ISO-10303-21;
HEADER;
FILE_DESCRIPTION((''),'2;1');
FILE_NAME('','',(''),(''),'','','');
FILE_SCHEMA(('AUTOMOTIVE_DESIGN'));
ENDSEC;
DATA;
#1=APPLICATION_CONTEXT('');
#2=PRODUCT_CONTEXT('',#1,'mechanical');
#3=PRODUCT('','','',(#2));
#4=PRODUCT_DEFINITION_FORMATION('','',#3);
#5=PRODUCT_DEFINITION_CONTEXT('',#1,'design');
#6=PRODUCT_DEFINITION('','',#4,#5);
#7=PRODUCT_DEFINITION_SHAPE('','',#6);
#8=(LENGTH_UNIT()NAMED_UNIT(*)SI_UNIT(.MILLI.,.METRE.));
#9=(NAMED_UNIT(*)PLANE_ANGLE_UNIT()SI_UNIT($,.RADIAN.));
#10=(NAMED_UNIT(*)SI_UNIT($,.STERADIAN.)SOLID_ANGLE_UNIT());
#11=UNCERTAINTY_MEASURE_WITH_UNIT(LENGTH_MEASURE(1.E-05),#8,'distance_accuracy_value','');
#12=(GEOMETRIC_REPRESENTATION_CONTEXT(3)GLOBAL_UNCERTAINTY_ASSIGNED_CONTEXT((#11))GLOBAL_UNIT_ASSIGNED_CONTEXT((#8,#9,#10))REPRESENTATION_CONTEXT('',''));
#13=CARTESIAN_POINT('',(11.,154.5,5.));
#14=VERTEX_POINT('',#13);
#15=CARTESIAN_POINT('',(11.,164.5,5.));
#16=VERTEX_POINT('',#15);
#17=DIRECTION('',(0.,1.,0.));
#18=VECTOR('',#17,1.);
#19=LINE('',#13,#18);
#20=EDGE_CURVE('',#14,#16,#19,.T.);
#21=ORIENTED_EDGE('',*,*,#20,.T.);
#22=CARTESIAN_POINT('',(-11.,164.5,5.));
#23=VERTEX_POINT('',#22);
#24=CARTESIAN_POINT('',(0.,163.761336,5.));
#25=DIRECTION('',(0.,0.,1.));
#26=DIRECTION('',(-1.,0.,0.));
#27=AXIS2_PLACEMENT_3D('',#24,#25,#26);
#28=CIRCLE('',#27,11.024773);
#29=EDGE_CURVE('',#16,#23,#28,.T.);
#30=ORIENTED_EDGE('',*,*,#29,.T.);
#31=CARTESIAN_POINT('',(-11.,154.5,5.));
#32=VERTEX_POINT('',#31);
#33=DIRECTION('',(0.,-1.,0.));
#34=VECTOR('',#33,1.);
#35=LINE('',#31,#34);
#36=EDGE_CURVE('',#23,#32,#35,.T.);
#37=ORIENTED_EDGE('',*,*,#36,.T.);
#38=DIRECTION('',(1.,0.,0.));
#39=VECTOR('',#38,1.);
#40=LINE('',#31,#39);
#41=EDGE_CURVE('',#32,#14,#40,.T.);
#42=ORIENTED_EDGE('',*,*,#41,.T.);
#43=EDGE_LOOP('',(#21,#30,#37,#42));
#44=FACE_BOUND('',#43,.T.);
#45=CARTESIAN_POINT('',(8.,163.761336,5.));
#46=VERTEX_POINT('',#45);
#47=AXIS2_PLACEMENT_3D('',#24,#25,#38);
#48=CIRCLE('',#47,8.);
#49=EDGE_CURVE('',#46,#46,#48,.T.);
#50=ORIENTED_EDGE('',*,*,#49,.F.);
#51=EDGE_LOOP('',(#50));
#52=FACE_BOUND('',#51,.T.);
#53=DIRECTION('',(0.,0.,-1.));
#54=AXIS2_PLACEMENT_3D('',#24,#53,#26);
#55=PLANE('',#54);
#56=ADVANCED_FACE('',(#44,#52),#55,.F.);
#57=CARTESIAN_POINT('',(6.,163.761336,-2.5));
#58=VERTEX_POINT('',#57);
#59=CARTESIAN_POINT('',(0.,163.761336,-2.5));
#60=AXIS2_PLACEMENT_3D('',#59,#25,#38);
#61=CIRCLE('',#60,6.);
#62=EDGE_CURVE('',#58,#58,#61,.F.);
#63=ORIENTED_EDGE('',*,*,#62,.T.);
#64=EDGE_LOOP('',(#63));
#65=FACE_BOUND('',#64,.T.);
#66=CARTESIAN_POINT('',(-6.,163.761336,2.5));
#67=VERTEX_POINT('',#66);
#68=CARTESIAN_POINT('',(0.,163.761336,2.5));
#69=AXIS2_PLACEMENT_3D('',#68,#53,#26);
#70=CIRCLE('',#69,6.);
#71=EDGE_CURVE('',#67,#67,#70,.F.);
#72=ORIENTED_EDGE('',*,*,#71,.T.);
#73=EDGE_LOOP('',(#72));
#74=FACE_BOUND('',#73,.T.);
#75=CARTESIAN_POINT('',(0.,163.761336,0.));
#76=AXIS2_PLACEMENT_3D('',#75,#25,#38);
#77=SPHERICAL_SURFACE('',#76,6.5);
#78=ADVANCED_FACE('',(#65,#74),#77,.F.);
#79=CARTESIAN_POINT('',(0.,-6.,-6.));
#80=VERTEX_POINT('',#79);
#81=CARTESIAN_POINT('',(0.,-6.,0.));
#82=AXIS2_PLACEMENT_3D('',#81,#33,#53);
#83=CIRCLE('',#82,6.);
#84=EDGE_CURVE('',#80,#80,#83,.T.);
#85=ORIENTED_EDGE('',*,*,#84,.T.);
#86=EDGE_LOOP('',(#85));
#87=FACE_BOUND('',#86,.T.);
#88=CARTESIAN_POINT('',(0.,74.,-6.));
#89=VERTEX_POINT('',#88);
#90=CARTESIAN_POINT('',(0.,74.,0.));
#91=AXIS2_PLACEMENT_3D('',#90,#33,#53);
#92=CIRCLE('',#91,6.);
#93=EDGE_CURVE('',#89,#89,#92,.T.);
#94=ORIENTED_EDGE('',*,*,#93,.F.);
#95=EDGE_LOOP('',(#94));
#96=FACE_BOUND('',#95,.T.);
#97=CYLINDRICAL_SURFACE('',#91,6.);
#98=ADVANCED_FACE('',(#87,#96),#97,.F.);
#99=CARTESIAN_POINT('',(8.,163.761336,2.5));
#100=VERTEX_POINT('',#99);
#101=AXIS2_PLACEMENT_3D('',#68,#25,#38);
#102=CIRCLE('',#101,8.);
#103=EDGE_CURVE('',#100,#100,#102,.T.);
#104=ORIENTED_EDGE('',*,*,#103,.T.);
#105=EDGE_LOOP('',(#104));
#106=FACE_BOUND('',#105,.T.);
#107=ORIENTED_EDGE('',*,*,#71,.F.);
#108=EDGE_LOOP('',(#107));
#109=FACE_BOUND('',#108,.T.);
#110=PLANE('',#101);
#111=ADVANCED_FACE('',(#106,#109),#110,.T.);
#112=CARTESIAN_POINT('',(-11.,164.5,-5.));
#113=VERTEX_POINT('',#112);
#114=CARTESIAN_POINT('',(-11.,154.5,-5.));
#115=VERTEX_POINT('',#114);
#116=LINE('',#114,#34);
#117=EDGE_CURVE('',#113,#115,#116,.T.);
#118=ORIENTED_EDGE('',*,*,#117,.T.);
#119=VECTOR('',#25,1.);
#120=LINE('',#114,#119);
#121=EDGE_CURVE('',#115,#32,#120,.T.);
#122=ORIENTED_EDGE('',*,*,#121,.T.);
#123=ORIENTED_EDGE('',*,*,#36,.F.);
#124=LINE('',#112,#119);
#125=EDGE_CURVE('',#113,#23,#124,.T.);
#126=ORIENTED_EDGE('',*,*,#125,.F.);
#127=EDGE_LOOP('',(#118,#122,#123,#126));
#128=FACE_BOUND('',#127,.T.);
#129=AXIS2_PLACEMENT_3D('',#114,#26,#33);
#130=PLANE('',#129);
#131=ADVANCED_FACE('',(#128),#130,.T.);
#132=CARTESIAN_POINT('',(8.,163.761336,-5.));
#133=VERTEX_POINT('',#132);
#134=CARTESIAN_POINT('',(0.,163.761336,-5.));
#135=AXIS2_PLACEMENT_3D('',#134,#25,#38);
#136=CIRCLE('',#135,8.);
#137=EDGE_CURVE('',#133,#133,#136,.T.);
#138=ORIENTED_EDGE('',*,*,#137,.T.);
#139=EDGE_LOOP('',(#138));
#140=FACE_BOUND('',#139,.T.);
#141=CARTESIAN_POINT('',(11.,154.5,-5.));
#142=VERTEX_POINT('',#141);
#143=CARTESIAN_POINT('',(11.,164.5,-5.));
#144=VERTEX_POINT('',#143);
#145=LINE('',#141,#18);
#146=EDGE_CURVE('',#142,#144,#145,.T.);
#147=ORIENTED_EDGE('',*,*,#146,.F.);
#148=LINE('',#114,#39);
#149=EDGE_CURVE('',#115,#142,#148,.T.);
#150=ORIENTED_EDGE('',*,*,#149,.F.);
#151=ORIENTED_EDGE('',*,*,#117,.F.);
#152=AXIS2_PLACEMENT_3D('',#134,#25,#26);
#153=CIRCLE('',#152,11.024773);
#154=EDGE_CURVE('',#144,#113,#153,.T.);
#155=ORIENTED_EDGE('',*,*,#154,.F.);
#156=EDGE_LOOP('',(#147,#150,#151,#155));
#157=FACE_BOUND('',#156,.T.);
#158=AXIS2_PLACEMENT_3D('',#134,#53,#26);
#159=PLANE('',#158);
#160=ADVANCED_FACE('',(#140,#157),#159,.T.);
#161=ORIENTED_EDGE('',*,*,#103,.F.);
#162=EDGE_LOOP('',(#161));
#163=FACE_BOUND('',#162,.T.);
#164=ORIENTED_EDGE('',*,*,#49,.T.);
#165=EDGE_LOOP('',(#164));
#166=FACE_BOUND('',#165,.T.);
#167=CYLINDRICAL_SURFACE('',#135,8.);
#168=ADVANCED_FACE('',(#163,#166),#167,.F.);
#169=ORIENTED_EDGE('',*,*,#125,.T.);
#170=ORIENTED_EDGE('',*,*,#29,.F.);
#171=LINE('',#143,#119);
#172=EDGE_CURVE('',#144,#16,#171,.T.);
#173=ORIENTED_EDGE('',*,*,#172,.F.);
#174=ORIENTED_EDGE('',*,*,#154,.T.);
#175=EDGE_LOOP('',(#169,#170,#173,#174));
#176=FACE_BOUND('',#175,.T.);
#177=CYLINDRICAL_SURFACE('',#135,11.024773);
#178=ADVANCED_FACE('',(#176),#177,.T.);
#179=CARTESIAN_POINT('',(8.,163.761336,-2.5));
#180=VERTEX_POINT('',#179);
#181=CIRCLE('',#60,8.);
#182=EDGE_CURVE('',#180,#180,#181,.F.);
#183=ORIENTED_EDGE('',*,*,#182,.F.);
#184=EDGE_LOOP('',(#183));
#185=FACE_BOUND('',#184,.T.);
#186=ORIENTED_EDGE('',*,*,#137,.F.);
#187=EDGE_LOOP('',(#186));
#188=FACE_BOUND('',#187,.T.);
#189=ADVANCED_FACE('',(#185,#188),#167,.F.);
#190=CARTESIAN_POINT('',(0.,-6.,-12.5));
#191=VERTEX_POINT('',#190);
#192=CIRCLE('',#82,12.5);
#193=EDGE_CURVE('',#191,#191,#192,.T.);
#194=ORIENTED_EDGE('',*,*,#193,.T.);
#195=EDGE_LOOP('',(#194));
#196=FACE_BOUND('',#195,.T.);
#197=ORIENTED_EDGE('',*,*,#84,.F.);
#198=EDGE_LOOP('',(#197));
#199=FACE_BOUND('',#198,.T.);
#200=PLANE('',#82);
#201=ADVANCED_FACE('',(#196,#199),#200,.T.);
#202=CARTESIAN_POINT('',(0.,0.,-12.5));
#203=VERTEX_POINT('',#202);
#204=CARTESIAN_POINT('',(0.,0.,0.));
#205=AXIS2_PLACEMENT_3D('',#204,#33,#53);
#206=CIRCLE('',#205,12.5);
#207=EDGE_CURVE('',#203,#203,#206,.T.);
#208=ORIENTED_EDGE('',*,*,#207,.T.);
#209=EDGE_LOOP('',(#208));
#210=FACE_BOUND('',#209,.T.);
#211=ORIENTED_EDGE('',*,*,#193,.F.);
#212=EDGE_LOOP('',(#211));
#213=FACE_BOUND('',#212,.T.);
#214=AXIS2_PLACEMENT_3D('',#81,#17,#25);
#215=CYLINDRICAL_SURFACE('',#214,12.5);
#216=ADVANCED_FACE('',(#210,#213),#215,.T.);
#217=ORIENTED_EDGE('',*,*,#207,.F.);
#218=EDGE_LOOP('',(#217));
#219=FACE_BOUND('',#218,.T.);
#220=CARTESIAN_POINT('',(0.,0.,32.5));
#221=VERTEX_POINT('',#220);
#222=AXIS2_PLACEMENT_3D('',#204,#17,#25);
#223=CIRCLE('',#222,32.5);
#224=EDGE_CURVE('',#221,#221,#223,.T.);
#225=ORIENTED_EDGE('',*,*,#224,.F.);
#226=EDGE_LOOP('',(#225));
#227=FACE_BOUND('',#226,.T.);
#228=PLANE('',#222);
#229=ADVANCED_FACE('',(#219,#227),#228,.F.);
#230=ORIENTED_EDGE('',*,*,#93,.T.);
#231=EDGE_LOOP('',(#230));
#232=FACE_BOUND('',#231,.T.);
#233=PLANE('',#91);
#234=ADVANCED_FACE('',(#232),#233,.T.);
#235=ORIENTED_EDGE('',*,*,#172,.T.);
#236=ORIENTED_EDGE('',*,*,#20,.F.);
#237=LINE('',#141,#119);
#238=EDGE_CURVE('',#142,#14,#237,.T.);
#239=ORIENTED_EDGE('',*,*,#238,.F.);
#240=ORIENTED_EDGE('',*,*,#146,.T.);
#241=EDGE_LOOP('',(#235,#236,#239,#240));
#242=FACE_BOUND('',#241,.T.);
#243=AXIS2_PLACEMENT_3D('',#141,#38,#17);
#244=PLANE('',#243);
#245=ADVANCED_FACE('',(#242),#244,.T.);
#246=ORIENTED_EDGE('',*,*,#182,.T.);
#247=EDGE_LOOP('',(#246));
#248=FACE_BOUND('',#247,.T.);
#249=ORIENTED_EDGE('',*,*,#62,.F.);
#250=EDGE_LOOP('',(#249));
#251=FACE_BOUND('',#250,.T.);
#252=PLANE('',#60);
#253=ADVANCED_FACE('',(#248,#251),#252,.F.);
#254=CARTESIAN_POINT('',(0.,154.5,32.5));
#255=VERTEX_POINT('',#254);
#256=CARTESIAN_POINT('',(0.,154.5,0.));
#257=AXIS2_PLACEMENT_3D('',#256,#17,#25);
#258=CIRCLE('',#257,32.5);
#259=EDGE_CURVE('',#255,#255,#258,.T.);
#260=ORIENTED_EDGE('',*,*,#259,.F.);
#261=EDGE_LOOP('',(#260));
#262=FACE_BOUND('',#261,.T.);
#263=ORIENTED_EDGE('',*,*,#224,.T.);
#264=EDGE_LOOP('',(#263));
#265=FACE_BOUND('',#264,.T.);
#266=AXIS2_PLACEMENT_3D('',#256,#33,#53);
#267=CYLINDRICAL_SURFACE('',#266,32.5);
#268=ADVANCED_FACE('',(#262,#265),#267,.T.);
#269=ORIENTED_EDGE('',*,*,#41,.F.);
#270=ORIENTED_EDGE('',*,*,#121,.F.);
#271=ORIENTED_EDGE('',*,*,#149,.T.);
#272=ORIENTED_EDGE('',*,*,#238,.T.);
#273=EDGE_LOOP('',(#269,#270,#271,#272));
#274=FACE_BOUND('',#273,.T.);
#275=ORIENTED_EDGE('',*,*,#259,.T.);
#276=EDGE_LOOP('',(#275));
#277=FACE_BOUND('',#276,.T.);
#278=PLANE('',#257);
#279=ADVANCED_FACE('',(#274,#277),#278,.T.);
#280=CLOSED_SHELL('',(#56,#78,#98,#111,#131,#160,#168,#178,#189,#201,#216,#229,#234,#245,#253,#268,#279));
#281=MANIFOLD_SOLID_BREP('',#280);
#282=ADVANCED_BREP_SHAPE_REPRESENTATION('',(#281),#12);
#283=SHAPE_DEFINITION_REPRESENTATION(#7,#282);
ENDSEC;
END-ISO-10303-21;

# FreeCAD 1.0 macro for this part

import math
import FreeCAD as App
import Part
import Sketcher

doc = App.newDocument("Part")
body = doc.addObject("PartDesign::Body", "Body")

# Sketch on XZ plane
sketch1 = body.newObject("Sketcher::SketchObject", "Sketch")
sketch1.AttachmentSupport = (doc.getObject("XZ_Plane"), [""])
sketch1.MapMode = "FlatFace"
sketch1.addGeometry(Part.Circle(App.Vector(0, 0, 0), App.Vector(0, 0, 1), 32), False)
sketch1.addConstraint([
    Sketcher.Constraint("Coincident", 0, 3, -1, 1),
    Sketcher.Constraint("Diameter", 0, 65.0),
])
pad1 = body.newObject("PartDesign::Pad", "Pad")
pad1.Profile = sketch1
pad1.Length = 154.5
pad1.Reversed = True

# Sketch on XZ plane
sketch2 = body.newObject("Sketcher::SketchObject", "Sketch001")
sketch2.AttachmentSupport = (doc.getObject("XZ_Plane"), [""])
sketch2.MapMode = "FlatFace"
sketch2.addGeometry(Part.Circle(App.Vector(0, 0, 0), App.Vector(0, 0, 1), 12), False)
sketch2.addConstraint([
    Sketcher.Constraint("Coincident", 0, 3, -1, 1),
    Sketcher.Constraint("Diameter", 0, 25.0),
])
pad2 = body.newObject("PartDesign::Pad", "Pad001")
pad2.Profile = sketch2
pad2.Length = 6

# Sketch on XZ plane
sketch3 = body.newObject("Sketcher::SketchObject", "Sketch002")
sketch3.AttachmentSupport = (doc.getObject("XZ_Plane"), [""])
sketch3.MapMode = "FlatFace"
sketch3.AttachmentOffset = App.Placement(App.Vector(0, 0, 6), App.Rotation())
sketch3.addGeometry(Part.Circle(App.Vector(0, 0, 0), App.Vector(0, 0, 1), 6), False)
sketch3.addConstraint([
    Sketcher.Constraint("Coincident", 0, 3, -1, 1),
    Sketcher.Constraint("Diameter", 0, 12.0),
])
pocket1 = body.newObject("PartDesign::Pocket", "Pocket")
pocket1.Profile = sketch3
pocket1.Length = 80

# Sketch on XY plane
sketch4 = body.newObject("Sketcher::SketchObject", "Sketch003")
sketch4.AttachmentSupport = (doc.getObject("XY_Plane"), [""])
sketch4.MapMode = "FlatFace"
sketch4.addGeometry([
    Part.LineSegment(App.Vector(-11, 154, 0), App.Vector(11, 154, 0)),  # 0
    Part.LineSegment(App.Vector(11, 154, 0), App.Vector(11, 164, 0)),  # 1
    Part.ArcOfCircle(Part.Circle(App.Vector(0, 164, 0), App.Vector(0, 0, 1), 11), math.radians(4), math.radians(176)),  # 2
    Part.LineSegment(App.Vector(-11, 164, 0), App.Vector(-11, 154, 0)),  # 3
    Part.Circle(App.Vector(0, 164, 0), App.Vector(0, 0, 1), 8),  # 4
], False)
sketch4.addConstraint([
    Sketcher.Constraint("Coincident", 0, 2, 1, 1),
    Sketcher.Constraint("Coincident", 1, 2, 2, 1),
    Sketcher.Constraint("Coincident", 2, 2, 3, 1),
    Sketcher.Constraint("Coincident", 3, 2, 0, 1),
    Sketcher.Constraint("Horizontal", 0),
    Sketcher.Constraint("Vertical", 1),
    Sketcher.Constraint("Vertical", 3),
    Sketcher.Constraint("Coincident", 4, 3, 2, 3),
    Sketcher.Constraint("Symmetric", 1, 2, 2, 2, -2),
    Sketcher.Constraint("Diameter", 4, 16.0),
    Sketcher.Constraint("DistanceX", 0, 1, 0, 2, 22.0),
    Sketcher.Constraint("DistanceY", 1, 1, 1, 2, 10.0),
    Sketcher.Constraint("DistanceY", -1, 1, 0, 2, 154.5),
    Sketcher.Constraint("Radius", 2, 11.024773),
])
pad3 = body.newObject("PartDesign::Pad", "Pad002")
pad3.Profile = sketch4
pad3.Length = 10
pad3.Midplane = True

# Sketch on XY plane
sketch5 = body.newObject("Sketcher::SketchObject", "Sketch004")
sketch5.AttachmentSupport = (doc.getObject("XY_Plane"), [""])
sketch5.MapMode = "FlatFace"
sketch5.addGeometry(Part.Circle(App.Vector(0, 164, 0), App.Vector(0, 0, 1), 8), False)
sketch5.addConstraint([
    Sketcher.Constraint("PointOnObject", 0, 3, -2),
    Sketcher.Constraint("Diameter", 0, 16.0),
    Sketcher.Constraint("DistanceY", -1, 1, 0, 3, 163.761336),
])
pad4 = body.newObject("PartDesign::Pad", "Pad003")
pad4.Profile = sketch5
pad4.Length = 5
pad4.Midplane = True

# Sketch on XY plane
sketch6 = body.newObject("Sketcher::SketchObject", "Sketch005")
sketch6.AttachmentSupport = (doc.getObject("XY_Plane"), [""])
sketch6.MapMode = "FlatFace"
sketch6.AttachmentOffset = App.Placement(App.Vector(0, 0, 4.5), App.Rotation())
sketch6.addGeometry(Part.Circle(App.Vector(0, 163.8, 0), App.Vector(0, 0, 1), 4), False)
sketch6.addConstraint([
    Sketcher.Constraint("PointOnObject", 0, 3, -2),
    Sketcher.Constraint("Diameter", 0, 8.0),
    Sketcher.Constraint("DistanceY", -1, 1, 0, 3, 163.761336),
])

# Sketch on XY plane
sketch7 = body.newObject("Sketcher::SketchObject", "Sketch006")
sketch7.AttachmentSupport = (doc.getObject("XY_Plane"), [""])
sketch7.MapMode = "FlatFace"
sketch7.AttachmentOffset = App.Placement(App.Vector(0, 0, 2.5), App.Rotation())
sketch7.addGeometry(Part.Circle(App.Vector(0, 164, 0), App.Vector(0, 0, 1), 6), False)
sketch7.addConstraint([
    Sketcher.Constraint("PointOnObject", 0, 3, -2),
    Sketcher.Constraint("Diameter", 0, 12.0),
    Sketcher.Constraint("DistanceY", -1, 1, 0, 3, 163.761336),
])

additiveloft = body.newObject("PartDesign::AdditiveLoft", "AdditiveLoft")
additiveloft.Profile = sketch6
additiveloft.Sections = [sketch7]
doc.recompute()

mirrored = body.newObject("PartDesign::Mirrored", "Mirrored")
mirrored.Originals = [additiveloft]
mirrored.MirrorPlane = (doc.getObject("XY_Plane"), [""])
body.Tip = mirrored

# Sketch on XY plane
sketch8 = body.newObject("Sketcher::SketchObject", "Sketch007")
sketch8.AttachmentSupport = (doc.getObject("XY_Plane"), [""])
sketch8.MapMode = "FlatFace"
sketch8.AttachmentOffset = App.Placement(App.Vector(0, 0, 4.5), App.Rotation())
sketch8.addGeometry(Part.Circle(App.Vector(0, 166.8, 0), App.Vector(0, 0, 1), 2.5), False)
sketch8.addConstraint([
    Sketcher.Constraint("PointOnObject", 0, 3, -2),
    Sketcher.Constraint("Diameter", 0, 5.0),
    Sketcher.Constraint("DistanceY", -1, 1, 0, 3, 166.761336),
])
pocket2 = body.newObject("PartDesign::Pocket", "Pocket001")
pocket2.Profile = sketch8
pocket2.Length = 31

# Sketch on XY plane
sketch9 = body.newObject("Sketcher::SketchObject", "Sketch008")
sketch9.AttachmentSupport = (doc.getObject("XY_Plane"), [""])
sketch9.MapMode = "FlatFace"
sketch9.AttachmentOffset = App.Placement(App.Vector(0, 0, 4.5), App.Rotation())
sketch9.addGeometry(Part.Circle(App.Vector(0, 164, 0), App.Vector(0, 0, 1), 6), False)
sketch9.addConstraint([
    Sketcher.Constraint("PointOnObject", 0, 3, -2),
    Sketcher.Constraint("Diameter", 0, 12.0),
    Sketcher.Constraint("DistanceY", -1, 1, 0, 3, 163.761336),
])
pocket3 = body.newObject("PartDesign::Pocket", "Pocket002")
pocket3.Profile = sketch9
pocket3.Length = 17

# Sketch on XY plane
sketch10 = body.newObject("Sketcher::SketchObject", "Sketch009")
sketch10.AttachmentSupport = (doc.getObject("XY_Plane"), [""])
sketch10.MapMode = "FlatFace"
sketch10.addGeometry([
    Part.LineSegment(App.Vector(0, 170, 0), App.Vector(0, 157, 0)),
    Part.ArcOfCircle(Part.Circle(App.Vector(0, 164, 0), App.Vector(0, 0, 1), 6), math.radians(-90), math.radians(90)),
], False)
sketch10.addConstraint([
    Sketcher.Constraint("Coincident", 0, 1, 1, 2),
    Sketcher.Constraint("Coincident", 1, 1, 0, 2),
    Sketcher.Constraint("Vertical", 0),
    Sketcher.Constraint("PointOnObject", 1, 3, -2),
    Sketcher.Constraint("PointOnObject", 0, 1, -2),
    Sketcher.Constraint("Radius", 1, 6.5),
    Sketcher.Constraint("DistanceY", -1, 1, 1, 3, 163.761336),
])
groove = body.newObject("PartDesign::Groove", "Groove")
groove.Profile = sketch10
groove.ReferenceAxis = (sketch10, ["V_Axis"])
groove.Angle = 360

doc.recompute()
